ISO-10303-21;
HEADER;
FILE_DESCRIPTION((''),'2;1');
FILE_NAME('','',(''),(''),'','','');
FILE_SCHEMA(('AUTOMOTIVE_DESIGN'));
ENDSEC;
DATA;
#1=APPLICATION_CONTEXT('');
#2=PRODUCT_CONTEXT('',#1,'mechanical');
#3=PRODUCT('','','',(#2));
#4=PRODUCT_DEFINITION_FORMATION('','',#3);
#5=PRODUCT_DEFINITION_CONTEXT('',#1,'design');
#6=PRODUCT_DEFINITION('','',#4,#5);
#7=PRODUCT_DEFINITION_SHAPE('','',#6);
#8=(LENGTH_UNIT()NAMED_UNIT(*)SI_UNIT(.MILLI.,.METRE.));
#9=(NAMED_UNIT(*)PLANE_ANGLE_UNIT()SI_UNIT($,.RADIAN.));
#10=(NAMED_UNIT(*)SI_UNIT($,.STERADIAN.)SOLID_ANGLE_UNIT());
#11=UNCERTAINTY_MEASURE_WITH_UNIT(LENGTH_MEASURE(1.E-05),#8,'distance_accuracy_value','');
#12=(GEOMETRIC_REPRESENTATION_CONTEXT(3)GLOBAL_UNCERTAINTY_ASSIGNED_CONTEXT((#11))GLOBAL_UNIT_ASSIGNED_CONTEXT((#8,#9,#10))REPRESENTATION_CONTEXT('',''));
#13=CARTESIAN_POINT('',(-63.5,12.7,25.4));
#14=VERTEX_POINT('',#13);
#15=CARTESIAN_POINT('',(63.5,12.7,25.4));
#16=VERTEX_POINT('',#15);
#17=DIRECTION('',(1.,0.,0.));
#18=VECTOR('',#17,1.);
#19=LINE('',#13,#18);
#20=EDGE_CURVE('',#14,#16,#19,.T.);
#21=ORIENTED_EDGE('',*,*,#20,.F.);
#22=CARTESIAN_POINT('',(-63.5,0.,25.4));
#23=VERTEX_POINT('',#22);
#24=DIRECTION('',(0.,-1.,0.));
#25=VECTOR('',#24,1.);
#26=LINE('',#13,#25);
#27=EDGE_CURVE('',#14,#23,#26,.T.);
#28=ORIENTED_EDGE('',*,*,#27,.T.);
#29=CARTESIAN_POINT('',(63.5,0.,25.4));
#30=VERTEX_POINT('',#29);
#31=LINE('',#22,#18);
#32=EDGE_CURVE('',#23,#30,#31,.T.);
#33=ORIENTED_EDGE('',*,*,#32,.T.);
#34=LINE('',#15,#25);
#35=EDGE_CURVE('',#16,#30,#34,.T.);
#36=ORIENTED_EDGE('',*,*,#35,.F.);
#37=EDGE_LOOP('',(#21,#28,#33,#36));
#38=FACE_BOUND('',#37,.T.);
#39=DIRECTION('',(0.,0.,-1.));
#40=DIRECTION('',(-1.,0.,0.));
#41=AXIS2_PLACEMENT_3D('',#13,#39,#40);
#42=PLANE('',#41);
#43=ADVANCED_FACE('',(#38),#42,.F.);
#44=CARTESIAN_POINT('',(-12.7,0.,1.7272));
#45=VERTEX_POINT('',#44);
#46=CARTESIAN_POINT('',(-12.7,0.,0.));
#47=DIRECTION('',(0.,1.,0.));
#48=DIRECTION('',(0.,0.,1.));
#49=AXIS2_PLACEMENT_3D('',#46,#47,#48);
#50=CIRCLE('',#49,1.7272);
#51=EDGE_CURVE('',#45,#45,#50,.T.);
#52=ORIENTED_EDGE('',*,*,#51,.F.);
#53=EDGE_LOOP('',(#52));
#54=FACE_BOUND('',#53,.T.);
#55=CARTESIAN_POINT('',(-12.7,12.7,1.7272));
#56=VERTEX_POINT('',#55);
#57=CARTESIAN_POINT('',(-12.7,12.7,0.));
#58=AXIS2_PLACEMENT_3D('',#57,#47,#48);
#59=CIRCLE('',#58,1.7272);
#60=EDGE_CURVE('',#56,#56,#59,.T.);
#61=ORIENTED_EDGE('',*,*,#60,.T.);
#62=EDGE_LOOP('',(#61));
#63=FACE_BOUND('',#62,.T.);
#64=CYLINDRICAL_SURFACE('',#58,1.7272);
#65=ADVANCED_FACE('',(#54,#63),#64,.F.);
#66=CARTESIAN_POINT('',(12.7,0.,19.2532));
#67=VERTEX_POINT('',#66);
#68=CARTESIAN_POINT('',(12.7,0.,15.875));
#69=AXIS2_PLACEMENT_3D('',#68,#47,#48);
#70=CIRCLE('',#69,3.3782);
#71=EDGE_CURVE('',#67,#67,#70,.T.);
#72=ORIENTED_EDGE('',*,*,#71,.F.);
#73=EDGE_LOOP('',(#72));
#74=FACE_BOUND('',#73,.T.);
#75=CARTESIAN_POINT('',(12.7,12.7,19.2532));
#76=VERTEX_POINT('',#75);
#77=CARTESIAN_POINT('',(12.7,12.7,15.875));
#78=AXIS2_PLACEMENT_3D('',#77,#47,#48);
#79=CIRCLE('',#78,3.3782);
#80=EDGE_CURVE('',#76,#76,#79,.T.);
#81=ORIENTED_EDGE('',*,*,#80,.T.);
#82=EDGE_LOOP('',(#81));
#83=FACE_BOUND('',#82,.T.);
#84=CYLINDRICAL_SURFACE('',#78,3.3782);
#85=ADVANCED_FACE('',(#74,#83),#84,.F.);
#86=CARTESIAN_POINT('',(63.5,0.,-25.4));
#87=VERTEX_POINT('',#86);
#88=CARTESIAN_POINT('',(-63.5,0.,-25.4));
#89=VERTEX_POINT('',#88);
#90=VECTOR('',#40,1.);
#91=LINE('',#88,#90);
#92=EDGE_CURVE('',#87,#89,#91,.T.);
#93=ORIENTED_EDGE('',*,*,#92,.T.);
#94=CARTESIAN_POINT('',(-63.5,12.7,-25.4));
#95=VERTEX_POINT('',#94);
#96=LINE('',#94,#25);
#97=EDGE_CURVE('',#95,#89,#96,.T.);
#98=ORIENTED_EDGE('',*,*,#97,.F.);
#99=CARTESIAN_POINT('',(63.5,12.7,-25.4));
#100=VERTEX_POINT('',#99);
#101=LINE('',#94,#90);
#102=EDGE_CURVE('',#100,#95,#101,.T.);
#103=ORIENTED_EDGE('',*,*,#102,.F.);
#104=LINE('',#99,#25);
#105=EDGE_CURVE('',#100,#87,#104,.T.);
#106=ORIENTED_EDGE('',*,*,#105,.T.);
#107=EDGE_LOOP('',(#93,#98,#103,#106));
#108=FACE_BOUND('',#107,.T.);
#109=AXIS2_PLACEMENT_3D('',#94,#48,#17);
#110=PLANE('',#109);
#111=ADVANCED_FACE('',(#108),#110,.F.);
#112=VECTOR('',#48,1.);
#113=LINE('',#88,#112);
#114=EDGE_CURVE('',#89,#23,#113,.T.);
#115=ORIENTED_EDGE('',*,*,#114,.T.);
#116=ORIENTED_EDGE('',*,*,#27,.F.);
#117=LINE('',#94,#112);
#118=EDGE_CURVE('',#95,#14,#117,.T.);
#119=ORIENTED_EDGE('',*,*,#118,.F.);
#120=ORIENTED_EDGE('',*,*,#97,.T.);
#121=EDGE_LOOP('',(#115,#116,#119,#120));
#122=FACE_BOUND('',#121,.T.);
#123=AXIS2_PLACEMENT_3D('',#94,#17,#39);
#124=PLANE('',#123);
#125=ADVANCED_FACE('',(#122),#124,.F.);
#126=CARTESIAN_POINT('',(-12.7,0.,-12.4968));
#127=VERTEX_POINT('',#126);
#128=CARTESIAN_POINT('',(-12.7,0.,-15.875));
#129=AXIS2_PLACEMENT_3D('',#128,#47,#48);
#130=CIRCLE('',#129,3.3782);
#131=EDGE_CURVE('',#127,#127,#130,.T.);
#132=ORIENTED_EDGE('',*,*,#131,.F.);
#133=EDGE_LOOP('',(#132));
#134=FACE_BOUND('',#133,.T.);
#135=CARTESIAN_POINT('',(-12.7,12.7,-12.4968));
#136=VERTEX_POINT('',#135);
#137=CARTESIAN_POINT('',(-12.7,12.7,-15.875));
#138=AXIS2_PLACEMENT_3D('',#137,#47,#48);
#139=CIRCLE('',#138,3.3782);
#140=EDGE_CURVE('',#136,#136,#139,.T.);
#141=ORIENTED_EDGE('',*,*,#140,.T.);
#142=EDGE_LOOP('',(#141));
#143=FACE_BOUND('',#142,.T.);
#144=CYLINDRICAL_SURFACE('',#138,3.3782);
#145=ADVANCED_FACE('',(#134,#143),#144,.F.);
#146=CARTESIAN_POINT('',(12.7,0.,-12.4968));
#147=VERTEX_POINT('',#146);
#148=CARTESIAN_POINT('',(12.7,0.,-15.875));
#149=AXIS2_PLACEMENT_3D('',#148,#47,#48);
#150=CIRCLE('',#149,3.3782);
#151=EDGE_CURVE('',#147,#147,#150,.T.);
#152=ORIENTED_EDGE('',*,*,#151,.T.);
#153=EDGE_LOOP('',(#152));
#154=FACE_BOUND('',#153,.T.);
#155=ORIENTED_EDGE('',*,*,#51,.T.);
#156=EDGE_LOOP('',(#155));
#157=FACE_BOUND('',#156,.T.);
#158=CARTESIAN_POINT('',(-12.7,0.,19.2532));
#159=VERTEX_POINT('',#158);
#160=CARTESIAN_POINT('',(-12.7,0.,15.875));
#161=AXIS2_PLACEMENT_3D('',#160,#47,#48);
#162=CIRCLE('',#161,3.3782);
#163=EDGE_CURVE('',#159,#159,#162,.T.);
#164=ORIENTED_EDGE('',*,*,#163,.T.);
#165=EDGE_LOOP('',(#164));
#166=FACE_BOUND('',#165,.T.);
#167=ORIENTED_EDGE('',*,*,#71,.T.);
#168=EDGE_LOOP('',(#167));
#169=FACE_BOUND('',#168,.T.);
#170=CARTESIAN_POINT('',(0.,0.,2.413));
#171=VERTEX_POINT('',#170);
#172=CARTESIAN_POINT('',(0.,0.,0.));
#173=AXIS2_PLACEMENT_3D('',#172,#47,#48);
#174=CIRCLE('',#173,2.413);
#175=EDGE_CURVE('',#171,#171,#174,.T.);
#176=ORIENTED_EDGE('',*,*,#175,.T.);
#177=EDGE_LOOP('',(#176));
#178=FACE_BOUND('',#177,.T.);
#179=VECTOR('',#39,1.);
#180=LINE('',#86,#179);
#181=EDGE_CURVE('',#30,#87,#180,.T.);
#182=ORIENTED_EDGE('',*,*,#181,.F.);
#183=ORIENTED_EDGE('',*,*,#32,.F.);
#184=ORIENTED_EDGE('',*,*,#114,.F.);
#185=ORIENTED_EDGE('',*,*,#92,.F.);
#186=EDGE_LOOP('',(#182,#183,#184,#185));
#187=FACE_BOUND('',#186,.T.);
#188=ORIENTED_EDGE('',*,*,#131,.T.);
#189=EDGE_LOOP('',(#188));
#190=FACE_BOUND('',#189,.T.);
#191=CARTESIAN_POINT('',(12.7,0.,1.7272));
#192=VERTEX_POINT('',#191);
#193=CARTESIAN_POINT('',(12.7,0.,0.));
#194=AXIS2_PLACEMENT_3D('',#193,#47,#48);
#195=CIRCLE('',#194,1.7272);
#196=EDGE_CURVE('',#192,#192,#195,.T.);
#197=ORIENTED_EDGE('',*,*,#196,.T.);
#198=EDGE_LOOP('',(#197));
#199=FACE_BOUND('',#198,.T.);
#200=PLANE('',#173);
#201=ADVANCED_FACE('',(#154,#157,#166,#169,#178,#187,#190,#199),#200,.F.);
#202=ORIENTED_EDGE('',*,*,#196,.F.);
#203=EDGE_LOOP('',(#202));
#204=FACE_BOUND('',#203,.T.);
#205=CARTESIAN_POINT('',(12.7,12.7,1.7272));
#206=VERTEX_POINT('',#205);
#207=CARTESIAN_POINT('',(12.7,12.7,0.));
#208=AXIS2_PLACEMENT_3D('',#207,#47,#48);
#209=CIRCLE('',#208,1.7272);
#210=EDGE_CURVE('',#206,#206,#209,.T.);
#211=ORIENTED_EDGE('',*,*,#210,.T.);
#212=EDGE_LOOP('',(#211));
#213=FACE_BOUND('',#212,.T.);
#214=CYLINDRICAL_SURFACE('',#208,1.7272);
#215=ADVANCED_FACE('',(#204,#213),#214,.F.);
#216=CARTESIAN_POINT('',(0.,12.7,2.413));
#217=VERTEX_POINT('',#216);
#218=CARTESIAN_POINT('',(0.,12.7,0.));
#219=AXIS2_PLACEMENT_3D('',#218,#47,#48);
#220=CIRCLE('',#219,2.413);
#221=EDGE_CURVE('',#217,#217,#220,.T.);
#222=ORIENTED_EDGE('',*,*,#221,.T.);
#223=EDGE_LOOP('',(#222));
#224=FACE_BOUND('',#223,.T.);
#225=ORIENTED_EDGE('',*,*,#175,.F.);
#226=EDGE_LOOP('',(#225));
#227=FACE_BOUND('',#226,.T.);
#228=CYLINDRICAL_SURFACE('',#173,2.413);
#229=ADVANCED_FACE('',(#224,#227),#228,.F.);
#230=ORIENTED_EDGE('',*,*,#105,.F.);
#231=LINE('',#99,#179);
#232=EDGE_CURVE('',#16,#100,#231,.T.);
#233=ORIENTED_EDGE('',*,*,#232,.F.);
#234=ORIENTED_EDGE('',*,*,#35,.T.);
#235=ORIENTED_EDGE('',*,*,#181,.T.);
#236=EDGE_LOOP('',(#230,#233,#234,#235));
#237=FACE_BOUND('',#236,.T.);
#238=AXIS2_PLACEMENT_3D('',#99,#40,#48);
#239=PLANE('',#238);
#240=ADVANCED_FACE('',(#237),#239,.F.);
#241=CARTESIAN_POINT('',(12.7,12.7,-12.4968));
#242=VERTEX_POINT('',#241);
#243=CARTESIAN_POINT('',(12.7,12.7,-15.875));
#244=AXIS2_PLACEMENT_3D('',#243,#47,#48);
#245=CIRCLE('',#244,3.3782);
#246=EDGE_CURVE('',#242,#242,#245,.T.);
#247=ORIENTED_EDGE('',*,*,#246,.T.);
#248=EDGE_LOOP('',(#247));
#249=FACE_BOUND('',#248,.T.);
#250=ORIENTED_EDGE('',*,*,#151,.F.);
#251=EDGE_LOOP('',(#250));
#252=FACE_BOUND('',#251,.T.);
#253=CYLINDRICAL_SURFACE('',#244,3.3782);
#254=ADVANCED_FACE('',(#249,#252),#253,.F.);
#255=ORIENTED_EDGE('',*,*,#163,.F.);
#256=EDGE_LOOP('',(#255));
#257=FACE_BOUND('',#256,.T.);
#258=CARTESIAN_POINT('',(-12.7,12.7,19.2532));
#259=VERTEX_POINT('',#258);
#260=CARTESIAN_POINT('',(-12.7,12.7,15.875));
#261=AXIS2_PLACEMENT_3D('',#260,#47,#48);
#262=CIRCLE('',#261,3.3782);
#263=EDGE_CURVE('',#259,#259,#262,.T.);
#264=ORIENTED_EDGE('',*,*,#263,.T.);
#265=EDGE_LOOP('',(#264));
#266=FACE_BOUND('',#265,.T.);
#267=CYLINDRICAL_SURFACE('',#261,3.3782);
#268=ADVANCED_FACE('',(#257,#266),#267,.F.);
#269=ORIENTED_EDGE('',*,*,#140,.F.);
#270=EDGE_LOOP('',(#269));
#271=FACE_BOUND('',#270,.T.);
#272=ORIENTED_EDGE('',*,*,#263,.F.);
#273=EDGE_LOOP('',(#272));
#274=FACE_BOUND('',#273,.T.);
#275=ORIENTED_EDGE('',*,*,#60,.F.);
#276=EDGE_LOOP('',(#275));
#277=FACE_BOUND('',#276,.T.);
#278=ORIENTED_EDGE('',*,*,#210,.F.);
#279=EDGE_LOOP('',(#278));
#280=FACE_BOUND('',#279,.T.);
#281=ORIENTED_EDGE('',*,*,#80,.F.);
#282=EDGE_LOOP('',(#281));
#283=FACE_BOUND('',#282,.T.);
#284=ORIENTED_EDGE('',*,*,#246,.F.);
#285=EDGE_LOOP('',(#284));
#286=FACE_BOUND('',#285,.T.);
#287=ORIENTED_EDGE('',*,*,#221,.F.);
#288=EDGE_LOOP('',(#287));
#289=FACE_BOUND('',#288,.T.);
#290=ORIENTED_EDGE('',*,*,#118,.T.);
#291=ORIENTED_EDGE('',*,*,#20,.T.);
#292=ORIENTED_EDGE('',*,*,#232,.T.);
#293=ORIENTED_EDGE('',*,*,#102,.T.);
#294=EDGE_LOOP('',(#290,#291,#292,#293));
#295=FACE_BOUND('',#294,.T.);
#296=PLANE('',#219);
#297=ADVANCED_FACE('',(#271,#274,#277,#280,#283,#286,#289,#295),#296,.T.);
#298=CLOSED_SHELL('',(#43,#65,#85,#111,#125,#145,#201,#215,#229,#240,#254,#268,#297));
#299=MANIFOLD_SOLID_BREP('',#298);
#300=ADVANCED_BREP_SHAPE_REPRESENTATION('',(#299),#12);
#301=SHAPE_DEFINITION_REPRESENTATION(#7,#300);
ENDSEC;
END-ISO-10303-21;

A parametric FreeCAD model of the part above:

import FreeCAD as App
import Part
import Sketcher

V = App.Vector
Q = App.Units.Quantity

doc = App.newDocument("Part")
params = doc.addObject("Spreadsheet::Sheet", "Params")
for row, (alias, value) in enumerate([
    ("sketch1_width", "5 in"),
    ("sketch1_height", "2 in"),
    ("pad1_length", "0.5 in"),
    ("sketch2_diameter", "0.19 in"),
    ("sketch3_diameter", "0.266 in"),
    ("hole_diameter", "0.266 in"),
    ("sketch4_diameter", "0.136 in"),
    ("hole2_diameter", "0.136 in"),
], start=1):
    params.set(f"A{row}", alias)
    params.set(f"B{row}", "=" + value)
    params.setAlias(f"B{row}", alias)

body = doc.addObject("PartDesign::Body", "Body")

# Sketch on XZ plane
sketch1 = body.newObject("Sketcher::SketchObject", "Sketch")
sketch1.AttachmentSupport = (doc.getObject("XZ_Plane"), [""])
sketch1.MapMode = "FlatFace"
sketch1.addGeometry(Part.LineSegment(V(-64, -25, 0), V(-64, 25, 0)), False)
sketch1.addGeometry(Part.LineSegment(V(-64, 25, 0), V(64, 25, 0)), False)
sketch1.addGeometry(Part.LineSegment(V(64, 25, 0), V(64, -25, 0)), False)
sketch1.addGeometry(Part.LineSegment(V(64, -25, 0), V(-64, -25, 0)), False)
sketch1.addConstraint(Sketcher.Constraint("Coincident", 0, 2, 1, 1))
sketch1.addConstraint(Sketcher.Constraint("Coincident", 1, 2, 2, 1))
sketch1.addConstraint(Sketcher.Constraint("Coincident", 2, 2, 3, 1))
sketch1.addConstraint(Sketcher.Constraint("Coincident", 3, 2, 0, 1))
sketch1.addConstraint(Sketcher.Constraint("Vertical", 0))
sketch1.addConstraint(Sketcher.Constraint("Horizontal", 1))
sketch1.addConstraint(Sketcher.Constraint("Vertical", 2))
sketch1.addConstraint(Sketcher.Constraint("Horizontal", 3))
sketch1.addConstraint(Sketcher.Constraint("Symmetric", 0, 2, 2, 2, -1, 1))
sketch1.addConstraint(Sketcher.Constraint("DistanceX", 1, 1, 1, 2, Q("5 in")))
sketch1.addConstraint(Sketcher.Constraint("DistanceY", 0, 1, 0, 2, Q("2 in")))
sketch1.setExpression("Constraints[9]", "Params.sketch1_width")
sketch1.setExpression("Constraints[10]", "Params.sketch1_height")
pad1 = body.newObject("PartDesign::Pad", "Pad")
pad1.Profile = sketch1
pad1.setExpression("Length", "Params.pad1_length")
pad1.Reversed = True

# Sketch on XZ plane
sketch2 = body.newObject("Sketcher::SketchObject", "Sketch001")
sketch2.AttachmentSupport = (doc.getObject("XZ_Plane"), [""])
sketch2.MapMode = "FlatFace"
sketch2.AttachmentOffset = App.Placement(V(0, 0, -0.5 * 25.4), App.Rotation())
sketch2.addGeometry(Part.Circle(V(0, 0, 0), V(0, 0, 1), 2.4), False)
sketch2.addConstraint(Sketcher.Constraint("Coincident", 0, 3, -1, 1))
sketch2.addConstraint(Sketcher.Constraint("Diameter", 0, Q("0.19 in")))
sketch2.setExpression("Constraints[1]", "Params.sketch2_diameter")
pocket1 = body.newObject("PartDesign::Pocket", "Pocket")
pocket1.Profile = sketch2
pocket1.Type = "ThroughAll"
pocket1.Reversed = True

# Sketch on XZ plane
sketch3 = body.newObject("Sketcher::SketchObject", "Sketch002")
sketch3.AttachmentSupport = (doc.getObject("XZ_Plane"), [""])
sketch3.MapMode = "FlatFace"
sketch3.AttachmentOffset = App.Placement(V(0, 0, -0.5 * 25.4), App.Rotation())
sketch3.addGeometry(Part.Circle(V(-12.7, -15.9, 0), V(0, 0, 1), 3.4), False)
sketch3.addGeometry(Part.Circle(V(12.7, -15.9, 0), V(0, 0, 1), 3.4), False)
sketch3.addGeometry(Part.Circle(V(-12.7, 15.9, 0), V(0, 0, 1), 3.4), False)
sketch3.addGeometry(Part.Circle(V(12.7, 15.9, 0), V(0, 0, 1), 3.4), False)
sketch3.addConstraint(Sketcher.Constraint("Equal", 0, 1))
sketch3.addConstraint(Sketcher.Constraint("Equal", 1, 2))
sketch3.addConstraint(Sketcher.Constraint("Equal", 2, 3))
sketch3.addConstraint(Sketcher.Constraint("Symmetric", 1, 3, 2, 3, -1, 1))
sketch3.addConstraint(Sketcher.Constraint("Symmetric", 0, 3, 3, 3, -1, 1))
sketch3.addConstraint(Sketcher.Constraint("Symmetric", 0, 3, 1, 3, -2))
sketch3.addConstraint(Sketcher.Constraint("Diameter", 0, Q("0.266 in")))
sketch3.addConstraint(Sketcher.Constraint("DistanceX", 0, 3, 1, 3, Q("1 in")))
sketch3.addConstraint(Sketcher.Constraint("DistanceY", 0, 3, 2, 3, Q("1.25 in")))
sketch3.setExpression("Constraints[6]", "Params.sketch3_diameter")
doc.recompute()
hole = body.newObject("PartDesign::Hole", "Hole")
hole.Profile = sketch3
hole.ThreadType = "None"
hole.setExpression("Diameter", "Params.hole_diameter")
hole.DepthType = "ThroughAll"
hole.Reversed = True

# Sketch on XZ plane
sketch4 = body.newObject("Sketcher::SketchObject", "Sketch003")
sketch4.AttachmentSupport = (doc.getObject("XZ_Plane"), [""])
sketch4.MapMode = "FlatFace"
sketch4.AttachmentOffset = App.Placement(V(0, 0, -0.5 * 25.4), App.Rotation())
sketch4.addGeometry(Part.Circle(V(12.7, 0, 0), V(0, 0, 1), 1.7), False)
sketch4.addGeometry(Part.Circle(V(-12.7, 0, 0), V(0, 0, 1), 1.7), False)
sketch4.addConstraint(Sketcher.Constraint("Equal", 0, 1))
sketch4.addConstraint(Sketcher.Constraint("Symmetric", 0, 3, 1, 3, -1, 1))
sketch4.addConstraint(Sketcher.Constraint("PointOnObject", 0, 3, -1))
sketch4.addConstraint(Sketcher.Constraint("Diameter", 0, Q("0.136 in")))
sketch4.addConstraint(Sketcher.Constraint("DistanceX", 1, 3, 0, 3, Q("1 in")))
sketch4.setExpression("Constraints[3]", "Params.sketch4_diameter")
doc.recompute()
hole2 = body.newObject("PartDesign::Hole", "Hole001")
hole2.Profile = sketch4
hole2.ThreadType = "None"
hole2.setExpression("Diameter", "Params.hole2_diameter")
hole2.DepthType = "ThroughAll"
hole2.Reversed = True

doc.recompute()
